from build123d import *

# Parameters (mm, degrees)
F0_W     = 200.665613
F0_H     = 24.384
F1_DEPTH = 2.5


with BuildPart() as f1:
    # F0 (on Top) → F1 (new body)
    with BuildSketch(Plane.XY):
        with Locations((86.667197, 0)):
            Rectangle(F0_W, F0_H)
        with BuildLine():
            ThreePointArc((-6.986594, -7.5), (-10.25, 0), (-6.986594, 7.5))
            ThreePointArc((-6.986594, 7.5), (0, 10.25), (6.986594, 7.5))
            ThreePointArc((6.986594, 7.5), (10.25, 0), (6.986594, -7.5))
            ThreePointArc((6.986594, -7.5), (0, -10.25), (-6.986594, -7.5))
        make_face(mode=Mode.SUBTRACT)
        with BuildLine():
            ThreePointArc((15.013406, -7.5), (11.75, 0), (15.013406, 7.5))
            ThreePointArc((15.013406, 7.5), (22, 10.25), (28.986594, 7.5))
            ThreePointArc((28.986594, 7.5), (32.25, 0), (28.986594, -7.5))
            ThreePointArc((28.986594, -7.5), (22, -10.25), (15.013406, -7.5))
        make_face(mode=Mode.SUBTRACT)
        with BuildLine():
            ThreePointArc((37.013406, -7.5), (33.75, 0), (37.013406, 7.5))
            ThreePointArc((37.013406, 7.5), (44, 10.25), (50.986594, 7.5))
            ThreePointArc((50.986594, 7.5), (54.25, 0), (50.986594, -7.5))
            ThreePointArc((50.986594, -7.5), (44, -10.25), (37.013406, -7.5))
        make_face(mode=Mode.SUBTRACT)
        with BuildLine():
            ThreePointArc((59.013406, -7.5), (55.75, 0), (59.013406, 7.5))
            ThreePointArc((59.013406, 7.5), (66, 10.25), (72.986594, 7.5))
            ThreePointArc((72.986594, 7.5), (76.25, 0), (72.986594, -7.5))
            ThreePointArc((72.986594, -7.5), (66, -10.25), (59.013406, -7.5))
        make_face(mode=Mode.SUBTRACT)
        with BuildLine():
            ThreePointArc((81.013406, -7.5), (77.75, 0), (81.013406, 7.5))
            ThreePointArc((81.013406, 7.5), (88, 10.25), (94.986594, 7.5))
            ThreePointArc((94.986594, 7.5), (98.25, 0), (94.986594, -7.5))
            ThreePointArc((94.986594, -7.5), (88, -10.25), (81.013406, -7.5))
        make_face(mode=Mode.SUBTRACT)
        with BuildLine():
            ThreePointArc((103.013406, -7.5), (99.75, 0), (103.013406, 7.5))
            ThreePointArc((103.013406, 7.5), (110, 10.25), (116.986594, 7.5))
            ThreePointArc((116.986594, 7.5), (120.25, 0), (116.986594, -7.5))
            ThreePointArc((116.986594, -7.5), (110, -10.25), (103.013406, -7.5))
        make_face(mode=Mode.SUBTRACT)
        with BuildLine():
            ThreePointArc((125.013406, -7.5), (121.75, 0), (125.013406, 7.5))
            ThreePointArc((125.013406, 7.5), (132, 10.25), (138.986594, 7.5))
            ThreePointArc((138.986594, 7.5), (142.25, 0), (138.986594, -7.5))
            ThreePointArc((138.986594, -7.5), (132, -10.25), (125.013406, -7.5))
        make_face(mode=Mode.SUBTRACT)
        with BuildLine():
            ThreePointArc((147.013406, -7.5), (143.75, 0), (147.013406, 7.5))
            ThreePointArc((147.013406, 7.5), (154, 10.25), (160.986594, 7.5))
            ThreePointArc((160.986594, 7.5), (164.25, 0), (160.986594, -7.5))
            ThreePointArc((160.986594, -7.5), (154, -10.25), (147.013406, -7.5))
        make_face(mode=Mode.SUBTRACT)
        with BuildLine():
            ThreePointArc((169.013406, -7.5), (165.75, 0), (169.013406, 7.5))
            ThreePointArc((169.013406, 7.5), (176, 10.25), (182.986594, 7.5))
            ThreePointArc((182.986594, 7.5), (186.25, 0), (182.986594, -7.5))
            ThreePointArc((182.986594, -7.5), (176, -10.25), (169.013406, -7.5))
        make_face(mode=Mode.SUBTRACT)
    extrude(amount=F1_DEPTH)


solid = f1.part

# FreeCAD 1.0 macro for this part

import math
import FreeCAD as App
import Part
import Sketcher

doc = App.newDocument("Part")
params = doc.addObject("Spreadsheet::Sheet", "Params")
for row, (alias, value) in enumerate([
    ("sketch1_radius", "10.249999 mm"),
    ("pad1_length", "2.5 mm"),
], start=1):
    params.set(f"A{row}", alias)
    params.set(f"B{row}", "=" + value)
    params.setAlias(f"B{row}", alias)

body = doc.addObject("PartDesign::Body", "Body")

# Sketch on XY plane
sketch1 = body.newObject("Sketcher::SketchObject", "Sketch")
sketch1.AttachmentSupport = (doc.getObject("XY_Plane"), [""])
sketch1.MapMode = "FlatFace"
sketch1.addGeometry([
    Part.LineSegment(App.Vector(-13.66561, 12.192, 0), App.Vector(-13.66561, -12.192, 0)),  # 0
    Part.LineSegment(App.Vector(-13.66561, -12.192, 0), App.Vector(187.000003, -12.192, 0)),  # 1
    Part.LineSegment(App.Vector(187.000003, -12.192, 0), App.Vector(187.000003, 12.192, 0)),  # 2
    Part.LineSegment(App.Vector(187.000003, 12.192, 0), App.Vector(-13.66561, 12.192, 0)),  # 3
    Part.ArcOfCircle(Part.Circle(App.Vector(22, -0.000001, 0), App.Vector(0, 0, 1), 10.249999), math.radians(-132.970286), math.radians(-47.029714)),  # 4
    Part.ArcOfCircle(Part.Circle(App.Vector(21.999999, 0, 0), App.Vector(0, 0, 1), 10.249999), math.radians(132.97028), math.radians(227.02972)),  # 5
    Part.ArcOfCircle(Part.Circle(App.Vector(22, 0.000001, 0), App.Vector(0, 0, 1), 10.249999), math.radians(47.029714), math.radians(132.970286)),  # 6
    Part.ArcOfCircle(Part.Circle(App.Vector(22.000001, 0, 0), App.Vector(0, 0, 1), 10.249999), math.radians(-47.02972), math.radians(47.02972)),  # 7
    Part.ArcOfCircle(Part.Circle(App.Vector(0, -0.000001, 0), App.Vector(0, 0, 1), 10.249999), math.radians(-132.970286), math.radians(-47.029714)),  # 8
    Part.ArcOfCircle(Part.Circle(App.Vector(-0.000001, 0, 0), App.Vector(0, 0, 1), 10.249999), math.radians(132.97028), math.radians(227.02972)),  # 9
    Part.ArcOfCircle(Part.Circle(App.Vector(0, 0.000001, 0), App.Vector(0, 0, 1), 10.249999), math.radians(47.029714), math.radians(132.970286)),  # 10
    Part.ArcOfCircle(Part.Circle(App.Vector(0.000001, 0, 0), App.Vector(0, 0, 1), 10.249999), math.radians(-47.02972), math.radians(47.02972)),  # 11
    Part.ArcOfCircle(Part.Circle(App.Vector(44, -0.000001, 0), App.Vector(0, 0, 1), 10.249999), math.radians(-132.970286), math.radians(-47.029714)),  # 12
    Part.ArcOfCircle(Part.Circle(App.Vector(43.999999, 0, 0), App.Vector(0, 0, 1), 10.249999), math.radians(132.97028), math.radians(227.02972)),  # 13
    Part.ArcOfCircle(Part.Circle(App.Vector(44, 0.000001, 0), App.Vector(0, 0, 1), 10.249999), math.radians(47.029714), math.radians(132.970286)),  # 14
    Part.ArcOfCircle(Part.Circle(App.Vector(44.000001, 0, 0), App.Vector(0, 0, 1), 10.249999), math.radians(-47.02972), math.radians(47.02972)),  # 15
    Part.ArcOfCircle(Part.Circle(App.Vector(66, -0.000001, 0), App.Vector(0, 0, 1), 10.249999), math.radians(-132.970286), math.radians(-47.029714)),  # 16
    Part.ArcOfCircle(Part.Circle(App.Vector(65.999999, 0, 0), App.Vector(0, 0, 1), 10.249999), math.radians(132.97028), math.radians(227.02972)),  # 17
    Part.ArcOfCircle(Part.Circle(App.Vector(66, 0.000001, 0), App.Vector(0, 0, 1), 10.249999), math.radians(47.029714), math.radians(132.970286)),  # 18
    Part.ArcOfCircle(Part.Circle(App.Vector(66.000001, 0, 0), App.Vector(0, 0, 1), 10.249999), math.radians(-47.02972), math.radians(47.02972)),  # 19
    Part.ArcOfCircle(Part.Circle(App.Vector(88, -0.000001, 0), App.Vector(0, 0, 1), 10.249999), math.radians(-132.970286), math.radians(-47.029714)),  # 20
    Part.ArcOfCircle(Part.Circle(App.Vector(87.999999, 0, 0), App.Vector(0, 0, 1), 10.249999), math.radians(132.97028), math.radians(227.02972)),  # 21
    Part.ArcOfCircle(Part.Circle(App.Vector(88, 0.000001, 0), App.Vector(0, 0, 1), 10.249999), math.radians(47.029714), math.radians(132.970286)),  # 22
    Part.ArcOfCircle(Part.Circle(App.Vector(88.000001, 0, 0), App.Vector(0, 0, 1), 10.249999), math.radians(-47.02972), math.radians(47.02972)),  # 23
    Part.ArcOfCircle(Part.Circle(App.Vector(110, -0.000001, 0), App.Vector(0, 0, 1), 10.249999), math.radians(-132.970286), math.radians(-47.029714)),  # 24
    Part.ArcOfCircle(Part.Circle(App.Vector(109.999999, 0, 0), App.Vector(0, 0, 1), 10.249999), math.radians(132.97028), math.radians(227.02972)),  # 25
    Part.ArcOfCircle(Part.Circle(App.Vector(110, 0.000001, 0), App.Vector(0, 0, 1), 10.249999), math.radians(47.029714), math.radians(132.970286)),  # 26
    Part.ArcOfCircle(Part.Circle(App.Vector(110.000001, 0, 0), App.Vector(0, 0, 1), 10.249999), math.radians(-47.02972), math.radians(47.02972)),  # 27
    Part.ArcOfCircle(Part.Circle(App.Vector(132, -0.000001, 0), App.Vector(0, 0, 1), 10.249999), math.radians(-132.970286), math.radians(-47.029714)),  # 28
    Part.ArcOfCircle(Part.Circle(App.Vector(131.999999, 0, 0), App.Vector(0, 0, 1), 10.249999), math.radians(132.97028), math.radians(227.02972)),  # 29
    Part.ArcOfCircle(Part.Circle(App.Vector(132, 0.000001, 0), App.Vector(0, 0, 1), 10.249999), math.radians(47.029714), math.radians(132.970286)),  # 30
    Part.ArcOfCircle(Part.Circle(App.Vector(132.000001, 0, 0), App.Vector(0, 0, 1), 10.249999), math.radians(-47.02972), math.radians(47.02972)),  # 31
    Part.ArcOfCircle(Part.Circle(App.Vector(154, -0.000001, 0), App.Vector(0, 0, 1), 10.249999), math.radians(-132.970286), math.radians(-47.029714)),  # 32
    Part.ArcOfCircle(Part.Circle(App.Vector(153.999999, 0, 0), App.Vector(0, 0, 1), 10.249999), math.radians(132.97028), math.radians(227.02972)),  # 33
    Part.ArcOfCircle(Part.Circle(App.Vector(154, 0.000001, 0), App.Vector(0, 0, 1), 10.249999), math.radians(47.029714), math.radians(132.970286)),  # 34
    Part.ArcOfCircle(Part.Circle(App.Vector(154.000001, 0, 0), App.Vector(0, 0, 1), 10.249999), math.radians(-47.02972), math.radians(47.02972)),  # 35
    Part.ArcOfCircle(Part.Circle(App.Vector(176, -0.000001, 0), App.Vector(0, 0, 1), 10.249999), math.radians(-132.970286), math.radians(-47.029714)),  # 36
    Part.ArcOfCircle(Part.Circle(App.Vector(175.999999, 0, 0), App.Vector(0, 0, 1), 10.249999), math.radians(132.97028), math.radians(227.02972)),  # 37
    Part.ArcOfCircle(Part.Circle(App.Vector(176, 0.000001, 0), App.Vector(0, 0, 1), 10.249999), math.radians(47.029714), math.radians(132.970286)),  # 38
    Part.ArcOfCircle(Part.Circle(App.Vector(176.000001, 0, 0), App.Vector(0, 0, 1), 10.249999), math.radians(-47.02972), math.radians(47.02972)),  # 39
], False)
sketch1.addConstraint([
    Sketcher.Constraint("Coincident", 0, 2, 1, 1),
    Sketcher.Constraint("Coincident", 1, 2, 2, 1),
    Sketcher.Constraint("Coincident", 2, 2, 3, 1),
    Sketcher.Constraint("Coincident", 3, 2, 0, 1),
    Sketcher.Constraint("Tangent", 4, 1, 5, 2),
    Sketcher.Constraint("Tangent", 5, 1, 6, 2),
    Sketcher.Constraint("Tangent", 6, 1, 7, 2),
    Sketcher.Constraint("Tangent", 7, 1, 4, 2),
    Sketcher.Constraint("Tangent", 8, 1, 9, 2),
    Sketcher.Constraint("Tangent", 9, 1, 10, 2),
    Sketcher.Constraint("Tangent", 10, 1, 11, 2),
    Sketcher.Constraint("Tangent", 11, 1, 8, 2),
    Sketcher.Constraint("Tangent", 12, 1, 13, 2),
    Sketcher.Constraint("Tangent", 13, 1, 14, 2),
    Sketcher.Constraint("Tangent", 14, 1, 15, 2),
    Sketcher.Constraint("Tangent", 15, 1, 12, 2),
    Sketcher.Constraint("Tangent", 16, 1, 17, 2),
    Sketcher.Constraint("Tangent", 17, 1, 18, 2),
    Sketcher.Constraint("Tangent", 18, 1, 19, 2),
    Sketcher.Constraint("Tangent", 19, 1, 16, 2),
    Sketcher.Constraint("Tangent", 20, 1, 21, 2),
    Sketcher.Constraint("Tangent", 21, 1, 22, 2),
    Sketcher.Constraint("Tangent", 22, 1, 23, 2),
    Sketcher.Constraint("Tangent", 23, 1, 20, 2),
    Sketcher.Constraint("Tangent", 24, 1, 25, 2),
    Sketcher.Constraint("Tangent", 25, 1, 26, 2),
    Sketcher.Constraint("Tangent", 26, 1, 27, 2),
    Sketcher.Constraint("Tangent", 27, 1, 24, 2),
    Sketcher.Constraint("Tangent", 28, 1, 29, 2),
    Sketcher.Constraint("Tangent", 29, 1, 30, 2),
    Sketcher.Constraint("Tangent", 30, 1, 31, 2),
    Sketcher.Constraint("Tangent", 31, 1, 28, 2),
    Sketcher.Constraint("Tangent", 32, 1, 33, 2),
    Sketcher.Constraint("Tangent", 33, 1, 34, 2),
    Sketcher.Constraint("Tangent", 34, 1, 35, 2),
    Sketcher.Constraint("Tangent", 35, 1, 32, 2),
    Sketcher.Constraint("Tangent", 36, 1, 37, 2),
    Sketcher.Constraint("Tangent", 37, 1, 38, 2),
    Sketcher.Constraint("Tangent", 38, 1, 39, 2),
    Sketcher.Constraint("Tangent", 39, 1, 36, 2),
    Sketcher.Constraint("Vertical", 0),
    Sketcher.Constraint("Horizontal", 1),
    Sketcher.Constraint("Vertical", 2),
    Sketcher.Constraint("Horizontal", 3),
    Sketcher.Constraint("Coincident", 8, 3, -1, 1),
    Sketcher.Constraint("Equal", 4, 5),
    Sketcher.Constraint("Equal", 7, 8),
    Sketcher.Constraint("Equal", 8, 9),
    Sketcher.Constraint("Equal", 11, 12),
    Sketcher.Constraint("Equal", 12, 13),
    Sketcher.Constraint("Equal", 15, 16),
    Sketcher.Constraint("Equal", 16, 17),
    Sketcher.Constraint("Equal", 19, 20),
    Sketcher.Constraint("Equal", 20, 21),
    Sketcher.Constraint("Equal", 23, 24),
    Sketcher.Constraint("Equal", 24, 25),
    Sketcher.Constraint("Equal", 27, 28),
    Sketcher.Constraint("Equal", 28, 29),
    Sketcher.Constraint("Equal", 31, 32),
    Sketcher.Constraint("Equal", 32, 33),
    Sketcher.Constraint("Equal", 35, 36),
    Sketcher.Constraint("Equal", 36, 37),
    Sketcher.Constraint("Symmetric", 4, 1, 5, 1, -1),
    Sketcher.Constraint("Symmetric", 12, 1, 13, 1, -1),
    Sketcher.Constraint("Symmetric", 16, 1, 17, 1, -1),
    Sketcher.Constraint("Symmetric", 20, 1, 21, 1, -1),
    Sketcher.Constraint("Symmetric", 24, 1, 25, 1, -1),
    Sketcher.Constraint("Symmetric", 28, 1, 29, 1, -1),
    Sketcher.Constraint("Symmetric", 32, 1, 33, 1, -1),
    Sketcher.Constraint("Symmetric", 36, 1, 37, 1, -1),
    Sketcher.Constraint("Horizontal", 5, 1, 6, 1),
    Sketcher.Constraint("Horizontal", 4, 1, 7, 1),
    Sketcher.Constraint("Horizontal", 7, 1, 8, 1),
    Sketcher.Constraint("Horizontal", 6, 1, 9, 1),
    Sketcher.Constraint("Horizontal", 9, 1, 10, 1),
    Sketcher.Constraint("Horizontal", 8, 1, 11, 1),
    Sketcher.Constraint("Horizontal", 11, 1, 12, 1),
    Sketcher.Constraint("Horizontal", 13, 1, 14, 1),
    Sketcher.Constraint("Horizontal", 12, 1, 15, 1),
    Sketcher.Constraint("Horizontal", 15, 1, 16, 1),
    Sketcher.Constraint("Horizontal", 17, 1, 18, 1),
    Sketcher.Constraint("Horizontal", 16, 1, 19, 1),
    Sketcher.Constraint("Horizontal", 19, 1, 20, 1),
    Sketcher.Constraint("Horizontal", 21, 1, 22, 1),
    Sketcher.Constraint("Horizontal", 20, 1, 23, 1),
    Sketcher.Constraint("Horizontal", 23, 1, 24, 1),
    Sketcher.Constraint("Horizontal", 25, 1, 26, 1),
    Sketcher.Constraint("Horizontal", 24, 1, 27, 1),
    Sketcher.Constraint("Horizontal", 27, 1, 28, 1),
    Sketcher.Constraint("Horizontal", 29, 1, 30, 1),
    Sketcher.Constraint("Horizontal", 28, 1, 31, 1),
    Sketcher.Constraint("Horizontal", 31, 1, 32, 1),
    Sketcher.Constraint("Horizontal", 33, 1, 34, 1),
    Sketcher.Constraint("Horizontal", 32, 1, 35, 1),
    Sketcher.Constraint("Horizontal", 35, 1, 36, 1),
    Sketcher.Constraint("Horizontal", 37, 1, 38, 1),
    Sketcher.Constraint("Horizontal", 36, 1, 39, 1),
    Sketcher.Constraint("Radius", 4, 10.249999),
    Sketcher.Constraint("DistanceX", -1, 1, 4, 3, 22.0),
    Sketcher.Constraint("DistanceX", -1, 1, 12, 3, 44.0),
    Sketcher.Constraint("DistanceX", -1, 1, 16, 3, 66.0),
    Sketcher.Constraint("DistanceX", -1, 1, 20, 3, 88.0),
    Sketcher.Constraint("DistanceX", -1, 1, 24, 3, 110.0),
    Sketcher.Constraint("DistanceX", -1, 1, 28, 3, 132.0),
    Sketcher.Constraint("DistanceX", -1, 1, 32, 3, 154.0),
    Sketcher.Constraint("DistanceX", -1, 1, 36, 3, 176.0),
    Sketcher.Constraint("DistanceY", 4, 1, -1, 1, 7.5),
    Sketcher.Constraint("DistanceY", 0, 2, 0, 1, 24.384),
    Sketcher.Constraint("DistanceY", 0, 2, -1, 1, 12.192),
    Sketcher.Constraint("DistanceX", 1, 1, 1, 2, 200.665613),
    Sketcher.Constraint("DistanceX", 0, 2, -1, 1, 13.66561),
])
sketch1.setExpression("Constraints[97]", "Params.sketch1_radius")
pad1 = body.newObject("PartDesign::Pad", "Pad")
pad1.Profile = sketch1
pad1.setExpression("Length", "Params.pad1_length")

doc.recompute()
